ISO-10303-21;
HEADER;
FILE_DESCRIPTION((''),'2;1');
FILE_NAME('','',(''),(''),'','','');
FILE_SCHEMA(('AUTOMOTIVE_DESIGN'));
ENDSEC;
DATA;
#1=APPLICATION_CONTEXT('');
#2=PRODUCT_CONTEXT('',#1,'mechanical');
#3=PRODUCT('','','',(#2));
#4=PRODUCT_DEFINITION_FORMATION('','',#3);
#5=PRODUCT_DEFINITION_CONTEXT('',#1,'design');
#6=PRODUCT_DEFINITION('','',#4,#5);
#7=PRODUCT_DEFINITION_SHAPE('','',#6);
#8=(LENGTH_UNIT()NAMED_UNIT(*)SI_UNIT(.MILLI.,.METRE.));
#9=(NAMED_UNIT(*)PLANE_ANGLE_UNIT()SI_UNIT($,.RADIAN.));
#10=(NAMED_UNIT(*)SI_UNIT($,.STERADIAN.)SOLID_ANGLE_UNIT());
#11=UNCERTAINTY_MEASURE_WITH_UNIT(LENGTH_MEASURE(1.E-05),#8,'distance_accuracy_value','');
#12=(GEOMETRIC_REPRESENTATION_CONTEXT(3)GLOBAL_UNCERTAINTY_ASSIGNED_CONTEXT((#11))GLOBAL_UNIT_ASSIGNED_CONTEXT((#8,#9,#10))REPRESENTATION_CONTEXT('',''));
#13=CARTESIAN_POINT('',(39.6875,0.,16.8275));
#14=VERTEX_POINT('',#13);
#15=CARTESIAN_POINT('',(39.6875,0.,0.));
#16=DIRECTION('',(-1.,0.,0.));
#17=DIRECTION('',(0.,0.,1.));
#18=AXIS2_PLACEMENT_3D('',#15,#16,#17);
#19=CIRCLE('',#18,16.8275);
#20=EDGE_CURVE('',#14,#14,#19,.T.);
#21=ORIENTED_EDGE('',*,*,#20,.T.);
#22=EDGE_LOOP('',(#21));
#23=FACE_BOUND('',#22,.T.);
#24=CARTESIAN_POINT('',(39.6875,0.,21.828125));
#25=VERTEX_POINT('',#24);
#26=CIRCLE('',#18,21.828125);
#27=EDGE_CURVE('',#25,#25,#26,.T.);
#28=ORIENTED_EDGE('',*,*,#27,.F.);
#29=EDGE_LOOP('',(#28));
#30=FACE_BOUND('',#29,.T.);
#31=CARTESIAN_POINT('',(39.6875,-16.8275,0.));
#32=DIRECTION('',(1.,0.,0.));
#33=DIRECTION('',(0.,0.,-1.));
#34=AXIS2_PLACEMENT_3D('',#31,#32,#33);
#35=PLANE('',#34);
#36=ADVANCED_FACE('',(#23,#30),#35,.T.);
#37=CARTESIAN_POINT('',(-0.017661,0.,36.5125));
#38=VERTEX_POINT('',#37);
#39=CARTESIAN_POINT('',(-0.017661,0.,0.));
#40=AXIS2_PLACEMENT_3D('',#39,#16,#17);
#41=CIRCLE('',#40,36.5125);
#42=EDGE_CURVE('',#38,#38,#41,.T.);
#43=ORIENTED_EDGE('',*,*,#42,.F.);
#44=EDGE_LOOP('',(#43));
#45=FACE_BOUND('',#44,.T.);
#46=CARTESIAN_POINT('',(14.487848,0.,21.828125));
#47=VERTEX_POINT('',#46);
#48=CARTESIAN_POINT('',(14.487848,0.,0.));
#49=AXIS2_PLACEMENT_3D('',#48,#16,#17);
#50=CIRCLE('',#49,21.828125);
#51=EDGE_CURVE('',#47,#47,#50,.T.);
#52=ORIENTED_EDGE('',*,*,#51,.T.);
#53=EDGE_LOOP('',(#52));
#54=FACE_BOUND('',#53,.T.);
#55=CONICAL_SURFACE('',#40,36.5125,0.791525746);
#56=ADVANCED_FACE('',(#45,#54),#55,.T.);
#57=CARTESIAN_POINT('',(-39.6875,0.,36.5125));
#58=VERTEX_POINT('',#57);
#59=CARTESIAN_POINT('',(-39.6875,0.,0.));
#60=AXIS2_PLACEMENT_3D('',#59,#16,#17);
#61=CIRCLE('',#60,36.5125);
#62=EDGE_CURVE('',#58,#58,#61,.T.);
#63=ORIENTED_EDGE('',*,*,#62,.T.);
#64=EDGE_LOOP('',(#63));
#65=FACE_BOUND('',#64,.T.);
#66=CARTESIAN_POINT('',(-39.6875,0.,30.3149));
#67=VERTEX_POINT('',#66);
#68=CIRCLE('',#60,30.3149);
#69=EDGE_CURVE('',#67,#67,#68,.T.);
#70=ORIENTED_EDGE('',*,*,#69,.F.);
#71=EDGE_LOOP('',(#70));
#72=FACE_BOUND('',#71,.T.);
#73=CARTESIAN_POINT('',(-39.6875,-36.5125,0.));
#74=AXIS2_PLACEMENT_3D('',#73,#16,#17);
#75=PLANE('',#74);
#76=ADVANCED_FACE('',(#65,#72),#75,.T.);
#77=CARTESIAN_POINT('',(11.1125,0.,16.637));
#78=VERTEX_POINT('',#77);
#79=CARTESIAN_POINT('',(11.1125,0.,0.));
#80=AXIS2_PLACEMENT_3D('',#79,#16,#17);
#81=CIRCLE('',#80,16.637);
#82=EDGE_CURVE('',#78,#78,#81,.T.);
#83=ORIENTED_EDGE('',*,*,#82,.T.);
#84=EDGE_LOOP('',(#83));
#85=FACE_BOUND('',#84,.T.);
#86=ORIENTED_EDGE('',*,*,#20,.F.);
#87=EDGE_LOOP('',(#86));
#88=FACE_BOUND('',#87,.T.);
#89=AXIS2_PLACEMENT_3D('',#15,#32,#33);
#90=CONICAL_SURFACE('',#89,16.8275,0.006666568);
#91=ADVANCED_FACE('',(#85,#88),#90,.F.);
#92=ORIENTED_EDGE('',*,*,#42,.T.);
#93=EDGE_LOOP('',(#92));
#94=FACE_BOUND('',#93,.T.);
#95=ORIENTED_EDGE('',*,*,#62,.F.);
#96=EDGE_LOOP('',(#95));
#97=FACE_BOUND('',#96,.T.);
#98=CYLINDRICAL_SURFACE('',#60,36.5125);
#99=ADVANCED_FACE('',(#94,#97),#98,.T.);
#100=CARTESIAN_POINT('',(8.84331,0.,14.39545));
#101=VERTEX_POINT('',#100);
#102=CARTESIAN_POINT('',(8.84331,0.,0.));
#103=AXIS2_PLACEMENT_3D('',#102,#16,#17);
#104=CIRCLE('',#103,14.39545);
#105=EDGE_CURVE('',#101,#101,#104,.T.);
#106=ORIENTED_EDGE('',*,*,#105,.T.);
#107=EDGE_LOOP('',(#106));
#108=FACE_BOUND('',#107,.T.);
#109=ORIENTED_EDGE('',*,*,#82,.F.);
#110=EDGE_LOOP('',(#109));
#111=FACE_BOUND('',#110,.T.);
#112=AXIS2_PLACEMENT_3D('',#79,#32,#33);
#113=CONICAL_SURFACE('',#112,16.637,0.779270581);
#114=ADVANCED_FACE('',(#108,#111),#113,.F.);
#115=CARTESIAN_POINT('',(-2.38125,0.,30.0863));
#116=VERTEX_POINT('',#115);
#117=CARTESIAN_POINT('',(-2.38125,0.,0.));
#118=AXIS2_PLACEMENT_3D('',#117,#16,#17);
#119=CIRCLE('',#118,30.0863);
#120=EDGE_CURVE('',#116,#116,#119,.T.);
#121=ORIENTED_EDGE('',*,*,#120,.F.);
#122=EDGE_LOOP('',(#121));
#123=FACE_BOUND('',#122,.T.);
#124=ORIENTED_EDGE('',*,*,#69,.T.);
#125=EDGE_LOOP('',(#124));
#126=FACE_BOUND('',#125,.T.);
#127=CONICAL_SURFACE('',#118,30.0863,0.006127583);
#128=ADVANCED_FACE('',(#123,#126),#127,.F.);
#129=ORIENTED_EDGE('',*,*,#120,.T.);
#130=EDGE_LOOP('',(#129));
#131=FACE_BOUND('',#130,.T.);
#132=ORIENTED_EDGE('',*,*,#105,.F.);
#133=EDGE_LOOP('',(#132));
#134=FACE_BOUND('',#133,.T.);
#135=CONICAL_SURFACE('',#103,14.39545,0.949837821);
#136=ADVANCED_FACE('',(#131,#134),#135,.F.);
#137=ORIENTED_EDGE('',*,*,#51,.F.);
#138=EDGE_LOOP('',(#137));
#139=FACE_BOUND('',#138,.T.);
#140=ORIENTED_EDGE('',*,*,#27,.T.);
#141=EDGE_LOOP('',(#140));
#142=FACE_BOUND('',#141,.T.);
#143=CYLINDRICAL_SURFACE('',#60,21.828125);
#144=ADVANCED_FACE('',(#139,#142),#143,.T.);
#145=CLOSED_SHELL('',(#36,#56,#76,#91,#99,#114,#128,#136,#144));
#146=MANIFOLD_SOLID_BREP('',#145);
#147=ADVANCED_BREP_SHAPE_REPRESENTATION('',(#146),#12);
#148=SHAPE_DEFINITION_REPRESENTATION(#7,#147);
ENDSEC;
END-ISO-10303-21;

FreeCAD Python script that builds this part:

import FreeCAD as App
import Part
import Sketcher

V = App.Vector
Q = App.Units.Quantity

doc = App.newDocument("Part")
body = doc.addObject("PartDesign::Body", "Body")

sketch1 = body.newObject("Sketcher::SketchObject", "Sketch")
sketch1.AttachmentSupport = (doc.getObject("XY_Plane"), [""])
sketch1.MapMode = "FlatFace"
sketch1.addGeometry([
    Part.LineSegment(V(-39.7, -30.3, 0), V(-39.7, -36.5, 0)),
    Part.LineSegment(V(-39.7, -36.5, 0), V(0, -36.5, 0)),
    Part.LineSegment(V(0, -36.5, 0), V(14.5, -21.8, 0)),
    Part.LineSegment(V(14.5, -21.8, 0), V(39.7, -21.8, 0)),
    Part.LineSegment(V(39.7, -21.8, 0), V(39.7, -16.8, 0)),
    Part.LineSegment(V(39.7, -16.8, 0), V(11.1, -16.6, 0)),
    Part.LineSegment(V(11.1, -16.6, 0), V(8.8, -14.4, 0)),
    Part.LineSegment(V(8.8, -14.4, 0), V(-2.4, -30.1, 0)),
    Part.LineSegment(V(-2.4, -30.1, 0), V(-39.7, -30.3, 0)),
], False)
sketch1.addConstraint([
    Sketcher.Constraint("Coincident", 0, 2, 1, 1),
    Sketcher.Constraint("Coincident", 1, 2, 2, 1),
    Sketcher.Constraint("Coincident", 2, 2, 3, 1),
    Sketcher.Constraint("Coincident", 3, 2, 4, 1),
    Sketcher.Constraint("Coincident", 4, 2, 5, 1),
    Sketcher.Constraint("Coincident", 5, 2, 6, 1),
    Sketcher.Constraint("Coincident", 6, 2, 7, 1),
    Sketcher.Constraint("Coincident", 7, 2, 8, 1),
    Sketcher.Constraint("Coincident", 8, 2, 0, 1),
    Sketcher.Constraint("Vertical", 0),
    Sketcher.Constraint("Horizontal", 1),
    Sketcher.Constraint("Horizontal", 3),
    Sketcher.Constraint("Vertical", 4),
    Sketcher.Constraint("Perpendicular", 2, 6),
    Sketcher.Constraint("DistanceX", 0, 2, 5, 2, Q("2 in")),
    Sketcher.Constraint("DistanceY", 0, 2, 0, 1, Q("0.244 in")),
    Sketcher.Constraint("DistanceX", 0, 2, -1, 1, Q("1.5625 in")),
    Sketcher.Constraint("DistanceY", 0, 2, -1, 1, Q("1.4375 in")),
    Sketcher.Constraint("DistanceY", 2, 2, -1, 1, Q("0.859375 in")),
    Sketcher.Constraint("DistanceX", -1, 1, 3, 2, Q("1.5625 in")),
    Sketcher.Constraint("DistanceY", 5, 2, -1, 1, Q("0.655 in")),
    Sketcher.Constraint("DistanceX", 7, 2, -1, 1, Q("0.09375 in")),
    Sketcher.Constraint("DistanceY", 1, 2, 4, 2, Q("0.775 in")),
    Sketcher.Constraint("DistanceY", 1, 2, 7, 2, Q("0.253 in")),
    Sketcher.Constraint("DistanceX", 1, 1, 1, 2, 39.669839),
    Sketcher.Constraint("DistanceX", 3, 1, 3, 2, 25.199652),
    Sketcher.Constraint("DistanceX", -1, 1, 6, 2, 8.84331),
])
revolution = body.newObject("PartDesign::Revolution", "Revolution")
revolution.Profile = sketch1
revolution.ReferenceAxis = (sketch1, ["H_Axis"])
revolution.Angle = 360

doc.recompute()
